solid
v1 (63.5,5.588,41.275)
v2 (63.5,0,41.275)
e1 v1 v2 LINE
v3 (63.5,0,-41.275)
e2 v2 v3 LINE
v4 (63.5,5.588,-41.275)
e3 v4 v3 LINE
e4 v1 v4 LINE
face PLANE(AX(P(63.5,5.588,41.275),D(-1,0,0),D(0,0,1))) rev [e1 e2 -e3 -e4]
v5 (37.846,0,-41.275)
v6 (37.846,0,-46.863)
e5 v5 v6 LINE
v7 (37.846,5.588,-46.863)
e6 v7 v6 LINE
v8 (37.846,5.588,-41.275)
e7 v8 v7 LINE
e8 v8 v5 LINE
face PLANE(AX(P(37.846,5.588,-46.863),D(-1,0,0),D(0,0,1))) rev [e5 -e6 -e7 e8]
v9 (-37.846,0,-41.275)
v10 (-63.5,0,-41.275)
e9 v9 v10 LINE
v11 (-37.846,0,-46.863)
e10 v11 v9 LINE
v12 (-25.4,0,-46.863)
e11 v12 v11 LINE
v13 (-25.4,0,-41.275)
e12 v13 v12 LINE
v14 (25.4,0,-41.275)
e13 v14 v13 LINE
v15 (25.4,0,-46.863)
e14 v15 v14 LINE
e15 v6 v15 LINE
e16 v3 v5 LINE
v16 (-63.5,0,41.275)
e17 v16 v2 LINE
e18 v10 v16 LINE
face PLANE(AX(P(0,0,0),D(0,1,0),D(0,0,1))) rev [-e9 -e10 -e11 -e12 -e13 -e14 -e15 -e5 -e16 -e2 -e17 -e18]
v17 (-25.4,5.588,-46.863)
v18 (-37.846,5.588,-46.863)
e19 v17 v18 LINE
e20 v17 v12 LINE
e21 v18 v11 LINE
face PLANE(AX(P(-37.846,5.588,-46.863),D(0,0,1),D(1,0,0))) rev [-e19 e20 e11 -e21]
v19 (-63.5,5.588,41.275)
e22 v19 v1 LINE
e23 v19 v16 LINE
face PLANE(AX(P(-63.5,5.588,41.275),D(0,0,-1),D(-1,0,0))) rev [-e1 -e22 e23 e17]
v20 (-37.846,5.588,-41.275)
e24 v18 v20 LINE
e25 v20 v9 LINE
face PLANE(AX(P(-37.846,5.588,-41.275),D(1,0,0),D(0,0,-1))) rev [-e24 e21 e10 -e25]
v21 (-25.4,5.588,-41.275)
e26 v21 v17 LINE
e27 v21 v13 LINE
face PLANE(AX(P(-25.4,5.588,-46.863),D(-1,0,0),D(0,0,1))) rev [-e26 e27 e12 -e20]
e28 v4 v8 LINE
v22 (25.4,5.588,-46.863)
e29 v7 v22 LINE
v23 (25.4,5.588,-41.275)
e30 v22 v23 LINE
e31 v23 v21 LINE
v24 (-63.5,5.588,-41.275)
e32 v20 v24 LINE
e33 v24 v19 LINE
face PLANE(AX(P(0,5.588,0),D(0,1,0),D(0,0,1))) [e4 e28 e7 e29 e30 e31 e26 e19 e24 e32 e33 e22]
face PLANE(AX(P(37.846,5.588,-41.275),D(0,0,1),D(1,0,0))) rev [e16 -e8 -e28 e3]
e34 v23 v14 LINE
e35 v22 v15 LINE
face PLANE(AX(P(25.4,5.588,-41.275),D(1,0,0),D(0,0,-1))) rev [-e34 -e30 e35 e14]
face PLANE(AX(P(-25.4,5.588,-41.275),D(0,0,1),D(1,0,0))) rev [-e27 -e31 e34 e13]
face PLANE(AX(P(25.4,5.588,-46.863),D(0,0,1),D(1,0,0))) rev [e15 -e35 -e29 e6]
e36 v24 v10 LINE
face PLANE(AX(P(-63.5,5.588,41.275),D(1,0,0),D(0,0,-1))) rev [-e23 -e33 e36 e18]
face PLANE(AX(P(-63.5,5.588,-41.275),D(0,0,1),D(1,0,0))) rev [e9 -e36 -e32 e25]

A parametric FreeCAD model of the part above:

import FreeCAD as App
import Part
import Sketcher
Q = App.Units.Quantity


def add_polygon(sketch, points):
    """Adds a closed chain of lines whose ends are joined by coincident constraints."""
    first, n = sketch.GeometryCount, len(points)
    for a, b in zip(points, points[1:] + points[:1]):
        sketch.addGeometry(Part.LineSegment(App.Vector(*a, 0), App.Vector(*b, 0)), False)
    for i in range(n):
        sketch.addConstraint(Sketcher.Constraint("Coincident", first + i, 2, first + (i + 1) % n, 1))

doc = App.newDocument("Part")
body = doc.addObject("PartDesign::Body", "Body")

sketch1 = doc.addObject("Sketcher::SketchObject", "Sketch")
body.addObject(sketch1)
sketch1.AttachmentSupport = (doc.XZ_Plane, [""])
sketch1.MapMode = "FlatFace"
add_polygon(sketch1, [(-64, 41), (64, 41), (64, -41), (38, -41), (38, -47), (25, -47), (25, -41), (-25, -41), (-25, -47), (-38, -47), (-38, -41), (-64, -41)])
sketch1.addConstraint(Sketcher.Constraint("Horizontal", 0))
sketch1.addConstraint(Sketcher.Constraint("Vertical", 1))
sketch1.addConstraint(Sketcher.Constraint("Horizontal", 2))
sketch1.addConstraint(Sketcher.Constraint("Vertical", 3))
sketch1.addConstraint(Sketcher.Constraint("Horizontal", 4))
sketch1.addConstraint(Sketcher.Constraint("Vertical", 5))
sketch1.addConstraint(Sketcher.Constraint("Horizontal", 6))
sketch1.addConstraint(Sketcher.Constraint("Vertical", 7))
sketch1.addConstraint(Sketcher.Constraint("Horizontal", 8))
sketch1.addConstraint(Sketcher.Constraint("Vertical", 9))
sketch1.addConstraint(Sketcher.Constraint("Horizontal", 10))
sketch1.addConstraint(Sketcher.Constraint("Vertical", 11))
sketch1.addConstraint(Sketcher.Constraint("Symmetric", 0, 2, 10, 2, -1, 1))
sketch1.addConstraint(Sketcher.Constraint("Symmetric", 4, 2, 7, 2, -2))
sketch1.addConstraint(Sketcher.Constraint("Symmetric", 2, 2, 9, 2, -2))
sketch1.addConstraint(Sketcher.Constraint("Horizontal", 2, 2, 5, 2))
sketch1.addConstraint(Sketcher.Constraint("DistanceX", 0, 1, 0, 2, Q("5 in")))
sketch1.addConstraint(Sketcher.Constraint("DistanceX", 6, 2, 6, 1, Q("2 in")))
sketch1.addConstraint(Sketcher.Constraint("DistanceX", 2, 2, 2, 1, Q("1.01 in")))
sketch1.addConstraint(Sketcher.Constraint("DistanceY", 1, 2, 1, 1, Q("3.25 in")))
sketch1.addConstraint(Sketcher.Constraint("DistanceY", 3, 2, 3, 1, Q("0.22 in")))
pad1 = doc.addObject("PartDesign::Pad", "Pad")
body.addObject(pad1)
pad1.Profile = sketch1
pad1.Length = Q("0.22 in")
pad1.Reversed = True

doc.recompute()
